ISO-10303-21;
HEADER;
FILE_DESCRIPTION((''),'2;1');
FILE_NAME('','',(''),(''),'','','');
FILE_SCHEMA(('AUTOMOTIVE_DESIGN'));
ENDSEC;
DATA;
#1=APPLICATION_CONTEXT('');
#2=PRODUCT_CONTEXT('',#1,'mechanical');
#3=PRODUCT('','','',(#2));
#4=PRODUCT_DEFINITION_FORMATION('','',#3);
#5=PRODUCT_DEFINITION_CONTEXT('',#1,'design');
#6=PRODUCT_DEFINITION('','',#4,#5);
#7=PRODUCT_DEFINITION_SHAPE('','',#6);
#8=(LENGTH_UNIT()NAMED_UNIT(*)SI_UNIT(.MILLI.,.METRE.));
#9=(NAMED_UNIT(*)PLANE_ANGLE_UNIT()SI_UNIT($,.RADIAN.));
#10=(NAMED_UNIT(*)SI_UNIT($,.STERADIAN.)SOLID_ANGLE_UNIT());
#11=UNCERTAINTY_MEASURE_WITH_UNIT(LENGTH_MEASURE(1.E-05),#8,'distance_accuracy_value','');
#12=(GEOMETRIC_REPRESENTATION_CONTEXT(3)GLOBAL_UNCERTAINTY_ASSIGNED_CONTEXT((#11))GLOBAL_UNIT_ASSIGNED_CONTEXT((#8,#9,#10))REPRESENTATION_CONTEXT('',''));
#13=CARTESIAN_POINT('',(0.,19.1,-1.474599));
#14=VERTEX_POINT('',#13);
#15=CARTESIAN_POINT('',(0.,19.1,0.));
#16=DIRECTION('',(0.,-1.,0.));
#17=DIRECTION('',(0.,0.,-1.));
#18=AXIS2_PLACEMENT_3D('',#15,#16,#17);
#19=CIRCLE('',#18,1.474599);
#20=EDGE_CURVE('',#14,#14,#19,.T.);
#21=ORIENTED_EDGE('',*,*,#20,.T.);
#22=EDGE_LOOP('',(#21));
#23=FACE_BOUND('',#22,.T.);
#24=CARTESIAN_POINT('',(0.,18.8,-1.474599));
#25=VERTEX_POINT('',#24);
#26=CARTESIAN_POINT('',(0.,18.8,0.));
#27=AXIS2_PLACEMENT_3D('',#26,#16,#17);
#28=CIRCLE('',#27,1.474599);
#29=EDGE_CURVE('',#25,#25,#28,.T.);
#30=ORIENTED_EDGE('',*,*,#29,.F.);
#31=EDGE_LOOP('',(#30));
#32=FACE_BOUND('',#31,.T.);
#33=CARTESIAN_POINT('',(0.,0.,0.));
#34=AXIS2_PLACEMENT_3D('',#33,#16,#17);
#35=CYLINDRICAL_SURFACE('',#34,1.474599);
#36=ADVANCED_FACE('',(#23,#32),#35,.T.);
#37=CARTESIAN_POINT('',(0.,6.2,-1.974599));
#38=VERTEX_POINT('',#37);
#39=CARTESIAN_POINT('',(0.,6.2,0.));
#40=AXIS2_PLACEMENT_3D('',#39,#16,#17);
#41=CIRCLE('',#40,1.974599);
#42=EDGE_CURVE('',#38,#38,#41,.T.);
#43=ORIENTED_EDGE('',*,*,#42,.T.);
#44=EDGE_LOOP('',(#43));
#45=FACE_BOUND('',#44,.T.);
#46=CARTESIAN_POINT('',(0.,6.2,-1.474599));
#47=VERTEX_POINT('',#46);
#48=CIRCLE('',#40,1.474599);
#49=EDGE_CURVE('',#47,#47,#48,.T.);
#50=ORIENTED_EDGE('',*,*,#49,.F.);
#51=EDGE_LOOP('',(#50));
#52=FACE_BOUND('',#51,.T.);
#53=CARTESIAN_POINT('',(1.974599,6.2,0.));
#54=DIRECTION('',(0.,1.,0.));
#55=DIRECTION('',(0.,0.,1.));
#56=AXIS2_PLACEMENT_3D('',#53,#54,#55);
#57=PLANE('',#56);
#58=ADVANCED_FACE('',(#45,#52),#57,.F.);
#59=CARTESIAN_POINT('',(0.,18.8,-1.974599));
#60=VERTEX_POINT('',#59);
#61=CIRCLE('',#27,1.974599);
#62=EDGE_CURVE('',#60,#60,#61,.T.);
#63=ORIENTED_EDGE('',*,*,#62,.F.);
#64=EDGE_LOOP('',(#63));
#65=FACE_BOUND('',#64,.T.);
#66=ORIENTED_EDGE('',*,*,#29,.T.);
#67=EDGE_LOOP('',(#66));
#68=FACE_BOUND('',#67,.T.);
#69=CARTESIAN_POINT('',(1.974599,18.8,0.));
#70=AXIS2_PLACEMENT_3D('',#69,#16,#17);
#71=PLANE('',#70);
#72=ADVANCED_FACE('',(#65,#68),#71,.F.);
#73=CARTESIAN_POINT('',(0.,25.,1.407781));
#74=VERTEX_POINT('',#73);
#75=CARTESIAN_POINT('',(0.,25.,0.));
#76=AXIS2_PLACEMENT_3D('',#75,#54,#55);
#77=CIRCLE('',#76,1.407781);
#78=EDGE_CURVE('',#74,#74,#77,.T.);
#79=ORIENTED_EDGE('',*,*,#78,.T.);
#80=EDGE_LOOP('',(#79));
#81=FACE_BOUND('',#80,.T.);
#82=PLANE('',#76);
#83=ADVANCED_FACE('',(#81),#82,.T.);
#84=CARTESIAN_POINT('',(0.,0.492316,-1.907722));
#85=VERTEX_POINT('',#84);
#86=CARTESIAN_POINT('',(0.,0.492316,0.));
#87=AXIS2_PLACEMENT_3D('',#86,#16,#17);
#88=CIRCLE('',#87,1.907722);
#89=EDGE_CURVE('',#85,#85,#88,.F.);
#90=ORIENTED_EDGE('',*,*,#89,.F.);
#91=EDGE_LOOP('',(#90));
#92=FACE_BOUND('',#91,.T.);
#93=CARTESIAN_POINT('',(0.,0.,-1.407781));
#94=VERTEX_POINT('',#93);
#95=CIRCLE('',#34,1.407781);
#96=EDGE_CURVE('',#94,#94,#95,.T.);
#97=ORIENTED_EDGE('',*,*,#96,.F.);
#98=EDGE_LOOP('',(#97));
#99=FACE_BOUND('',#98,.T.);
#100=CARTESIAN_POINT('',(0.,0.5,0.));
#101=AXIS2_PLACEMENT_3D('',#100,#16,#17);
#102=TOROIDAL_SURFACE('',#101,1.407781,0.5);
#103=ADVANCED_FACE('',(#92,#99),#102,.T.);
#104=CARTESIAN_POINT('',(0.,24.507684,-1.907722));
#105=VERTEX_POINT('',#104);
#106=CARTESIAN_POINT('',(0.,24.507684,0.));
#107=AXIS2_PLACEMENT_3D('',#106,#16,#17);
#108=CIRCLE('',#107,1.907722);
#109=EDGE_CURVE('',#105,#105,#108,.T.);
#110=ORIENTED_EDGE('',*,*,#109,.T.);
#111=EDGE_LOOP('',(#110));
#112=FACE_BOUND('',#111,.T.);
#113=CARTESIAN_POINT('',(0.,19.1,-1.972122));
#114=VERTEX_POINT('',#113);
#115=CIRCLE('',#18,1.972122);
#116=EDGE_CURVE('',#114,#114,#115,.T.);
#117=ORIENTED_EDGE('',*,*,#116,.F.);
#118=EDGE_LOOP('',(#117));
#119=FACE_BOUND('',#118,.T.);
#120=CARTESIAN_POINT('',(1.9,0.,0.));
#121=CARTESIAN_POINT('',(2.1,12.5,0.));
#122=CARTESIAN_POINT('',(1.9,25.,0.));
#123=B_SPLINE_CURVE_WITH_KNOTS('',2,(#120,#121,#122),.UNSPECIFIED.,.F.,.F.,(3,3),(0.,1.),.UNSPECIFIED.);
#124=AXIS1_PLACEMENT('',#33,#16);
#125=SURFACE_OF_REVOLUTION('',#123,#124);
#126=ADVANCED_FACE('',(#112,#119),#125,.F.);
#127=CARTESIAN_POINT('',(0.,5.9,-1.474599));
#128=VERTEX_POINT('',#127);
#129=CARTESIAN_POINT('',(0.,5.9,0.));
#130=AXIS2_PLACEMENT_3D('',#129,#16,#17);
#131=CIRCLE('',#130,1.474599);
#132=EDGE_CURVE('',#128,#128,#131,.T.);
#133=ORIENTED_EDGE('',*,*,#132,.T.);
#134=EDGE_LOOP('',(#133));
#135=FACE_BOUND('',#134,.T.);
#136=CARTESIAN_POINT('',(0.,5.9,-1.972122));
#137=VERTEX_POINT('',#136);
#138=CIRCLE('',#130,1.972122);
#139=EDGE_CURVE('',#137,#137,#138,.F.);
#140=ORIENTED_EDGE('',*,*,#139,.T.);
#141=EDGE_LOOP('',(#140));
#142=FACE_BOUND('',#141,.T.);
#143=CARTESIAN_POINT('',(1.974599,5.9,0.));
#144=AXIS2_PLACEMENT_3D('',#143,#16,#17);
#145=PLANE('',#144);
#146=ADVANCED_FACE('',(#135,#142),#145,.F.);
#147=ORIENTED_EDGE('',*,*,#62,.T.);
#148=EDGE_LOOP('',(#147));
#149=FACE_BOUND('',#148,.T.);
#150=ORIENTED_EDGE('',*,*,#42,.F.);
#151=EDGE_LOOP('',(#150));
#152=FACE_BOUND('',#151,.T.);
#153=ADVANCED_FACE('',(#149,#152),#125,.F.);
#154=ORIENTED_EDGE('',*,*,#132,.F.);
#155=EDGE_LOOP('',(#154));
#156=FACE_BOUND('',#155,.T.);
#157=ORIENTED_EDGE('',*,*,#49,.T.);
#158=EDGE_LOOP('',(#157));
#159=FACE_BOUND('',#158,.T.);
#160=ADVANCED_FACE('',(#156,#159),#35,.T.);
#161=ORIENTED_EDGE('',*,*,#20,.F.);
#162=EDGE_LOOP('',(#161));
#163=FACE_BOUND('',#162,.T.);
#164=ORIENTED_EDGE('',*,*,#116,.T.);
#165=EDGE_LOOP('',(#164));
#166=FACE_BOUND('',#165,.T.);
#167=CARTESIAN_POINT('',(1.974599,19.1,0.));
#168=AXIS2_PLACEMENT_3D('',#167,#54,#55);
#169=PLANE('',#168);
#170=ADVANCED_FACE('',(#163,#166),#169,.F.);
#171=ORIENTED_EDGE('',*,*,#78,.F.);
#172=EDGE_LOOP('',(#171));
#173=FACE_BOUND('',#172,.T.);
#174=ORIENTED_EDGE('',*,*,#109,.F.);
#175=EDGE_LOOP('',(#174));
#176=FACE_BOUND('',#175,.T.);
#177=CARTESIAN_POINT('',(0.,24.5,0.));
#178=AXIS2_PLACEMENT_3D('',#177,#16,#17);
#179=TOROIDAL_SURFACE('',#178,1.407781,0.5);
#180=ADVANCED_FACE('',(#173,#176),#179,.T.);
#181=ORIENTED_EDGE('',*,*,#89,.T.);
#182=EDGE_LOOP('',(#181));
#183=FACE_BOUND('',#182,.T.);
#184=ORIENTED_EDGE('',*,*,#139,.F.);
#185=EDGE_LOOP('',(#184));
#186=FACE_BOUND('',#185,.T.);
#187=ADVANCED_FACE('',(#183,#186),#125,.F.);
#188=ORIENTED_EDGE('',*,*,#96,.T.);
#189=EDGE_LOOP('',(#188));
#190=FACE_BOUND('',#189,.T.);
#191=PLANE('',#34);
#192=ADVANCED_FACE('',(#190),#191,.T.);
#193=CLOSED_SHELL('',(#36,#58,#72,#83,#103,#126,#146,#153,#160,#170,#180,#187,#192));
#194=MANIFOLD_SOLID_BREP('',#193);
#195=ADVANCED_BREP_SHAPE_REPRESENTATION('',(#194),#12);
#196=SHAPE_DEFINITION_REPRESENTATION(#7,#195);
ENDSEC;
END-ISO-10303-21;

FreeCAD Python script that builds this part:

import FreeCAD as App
import Part
import Sketcher

V = App.Vector


def edges_at(feature, points):
    """Names of the edges that pass closest to the given points."""
    edges = feature.Shape.Edges
    near = lambda p: min(range(len(edges)), key=lambda i: edges[i].distToShape(Part.Vertex(*p))[0])
    return sorted({f"Edge{near(p) + 1}" for p in points})

doc = App.newDocument("Part")
body = doc.addObject("PartDesign::Body", "Body")

# Sketch on XY plane
sketch1 = body.newObject("Sketcher::SketchObject", "Sketch")
sketch1.AttachmentSupport = (doc.getObject("XY_Plane"), [""])
sketch1.MapMode = "FlatFace"
sketch1.addGeometry(Part.LineSegment(V(1.9, 25, 0), V(0, 25, 0)), False)
sketch1.addGeometry(Part.LineSegment(V(0, 25, 0), V(0, 0, 0)), False)
sketch1.addGeometry(Part.LineSegment(V(0, 0, 0), V(1.9, 0, 0)), False)
sketch1.addGeometry(Part.BSplineCurve([V(1.9, 25, 0), V(2.1, 12.5, 0), V(1.9, 0, 0)], [3, 3], [0, 1], False, 2, [1, 1, 1], False), False)
sketch1.addConstraint(Sketcher.Constraint("Block", 3))
sketch1.addConstraint(Sketcher.Constraint("Coincident", 0, 2, 1, 1))
sketch1.addConstraint(Sketcher.Constraint("Coincident", 1, 2, 2, 1))
sketch1.addConstraint(Sketcher.Constraint("Coincident", 2, 2, 3, 2))
sketch1.addConstraint(Sketcher.Constraint("Coincident", 3, 1, 0, 1))
sketch1.addConstraint(Sketcher.Constraint("Horizontal", 0))
sketch1.addConstraint(Sketcher.Constraint("Vertical", 1))
sketch1.addConstraint(Sketcher.Constraint("Horizontal", 2))
sketch1.addConstraint(Sketcher.Constraint("PointOnObject", 0, 2, -2))
revolution = body.newObject("PartDesign::Revolution", "Revolution")
revolution.Profile = sketch1
revolution.ReferenceAxis = (sketch1, ["V_Axis"])
revolution.Angle = 360
doc.recompute()

fillet = body.newObject("PartDesign::Fillet", "Fillet")
fillet.Base = (revolution, edges_at(revolution, [(-1.9, 25, 0), (-1.9, 0, 0)]))
fillet.Radius = 0.5

# Sketch on XY plane
sketch2 = body.newObject("Sketcher::SketchObject", "Sketch001")
sketch2.AttachmentSupport = (doc.getObject("XY_Plane"), [""])
sketch2.MapMode = "FlatFace"
sketch2.addGeometry(Part.LineSegment(V(1.47, 6.2, 0), V(1.47, 5.9, 0)), False)
sketch2.addGeometry(Part.LineSegment(V(1.47, 5.9, 0), V(1.97, 5.9, 0)), False)
sketch2.addGeometry(Part.LineSegment(V(1.97, 5.9, 0), V(1.97, 6.2, 0)), False)
sketch2.addGeometry(Part.LineSegment(V(1.97, 6.2, 0), V(1.47, 6.2, 0)), False)
sketch2.addGeometry(Part.LineSegment(V(1.47, 19.1, 0), V(1.47, 18.8, 0)), False)
sketch2.addGeometry(Part.LineSegment(V(1.47, 18.8, 0), V(1.97, 18.8, 0)), False)
sketch2.addGeometry(Part.LineSegment(V(1.97, 18.8, 0), V(1.97, 19.1, 0)), False)
sketch2.addGeometry(Part.LineSegment(V(1.97, 19.1, 0), V(1.47, 19.1, 0)), False)
sketch2.addConstraint(Sketcher.Constraint("Coincident", 0, 2, 1, 1))
sketch2.addConstraint(Sketcher.Constraint("Coincident", 1, 2, 2, 1))
sketch2.addConstraint(Sketcher.Constraint("Coincident", 2, 2, 3, 1))
sketch2.addConstraint(Sketcher.Constraint("Coincident", 3, 2, 0, 1))
sketch2.addConstraint(Sketcher.Constraint("Coincident", 4, 2, 5, 1))
sketch2.addConstraint(Sketcher.Constraint("Coincident", 5, 2, 6, 1))
sketch2.addConstraint(Sketcher.Constraint("Coincident", 6, 2, 7, 1))
sketch2.addConstraint(Sketcher.Constraint("Coincident", 7, 2, 4, 1))
sketch2.addConstraint(Sketcher.Constraint("Vertical", 0))
sketch2.addConstraint(Sketcher.Constraint("Horizontal", 1))
sketch2.addConstraint(Sketcher.Constraint("Vertical", 2))
sketch2.addConstraint(Sketcher.Constraint("Horizontal", 3))
sketch2.addConstraint(Sketcher.Constraint("Vertical", 4))
sketch2.addConstraint(Sketcher.Constraint("Horizontal", 5))
sketch2.addConstraint(Sketcher.Constraint("Vertical", 6))
sketch2.addConstraint(Sketcher.Constraint("Horizontal", 7))
sketch2.addConstraint(Sketcher.Constraint("Vertical", 3, 2, 4, 2))
sketch2.addConstraint(Sketcher.Constraint("Vertical", 2, 2, 5, 2))
sketch2.addConstraint(Sketcher.Constraint("Equal", 2, 4))
sketch2.addConstraint(Sketcher.Constraint("DistanceX", 1, 1, 1, 2, 0.5))
sketch2.addConstraint(Sketcher.Constraint("DistanceY", 0, 2, 0, 1, 0.3))
sketch2.addConstraint(Sketcher.Constraint("DistanceY", -1, 1, 0, 2, 5.9))
sketch2.addConstraint(Sketcher.Constraint("DistanceY", -1, 1, 4, 2, 18.8))
sketch2.addConstraint(Sketcher.Constraint("DistanceX", -1, 1, 0, 2, 1.474599))
groove = body.newObject("PartDesign::Groove", "Groove")
groove.Profile = sketch2
groove.ReferenceAxis = (sketch2, ["V_Axis"])
groove.Angle = 360

doc.recompute()
